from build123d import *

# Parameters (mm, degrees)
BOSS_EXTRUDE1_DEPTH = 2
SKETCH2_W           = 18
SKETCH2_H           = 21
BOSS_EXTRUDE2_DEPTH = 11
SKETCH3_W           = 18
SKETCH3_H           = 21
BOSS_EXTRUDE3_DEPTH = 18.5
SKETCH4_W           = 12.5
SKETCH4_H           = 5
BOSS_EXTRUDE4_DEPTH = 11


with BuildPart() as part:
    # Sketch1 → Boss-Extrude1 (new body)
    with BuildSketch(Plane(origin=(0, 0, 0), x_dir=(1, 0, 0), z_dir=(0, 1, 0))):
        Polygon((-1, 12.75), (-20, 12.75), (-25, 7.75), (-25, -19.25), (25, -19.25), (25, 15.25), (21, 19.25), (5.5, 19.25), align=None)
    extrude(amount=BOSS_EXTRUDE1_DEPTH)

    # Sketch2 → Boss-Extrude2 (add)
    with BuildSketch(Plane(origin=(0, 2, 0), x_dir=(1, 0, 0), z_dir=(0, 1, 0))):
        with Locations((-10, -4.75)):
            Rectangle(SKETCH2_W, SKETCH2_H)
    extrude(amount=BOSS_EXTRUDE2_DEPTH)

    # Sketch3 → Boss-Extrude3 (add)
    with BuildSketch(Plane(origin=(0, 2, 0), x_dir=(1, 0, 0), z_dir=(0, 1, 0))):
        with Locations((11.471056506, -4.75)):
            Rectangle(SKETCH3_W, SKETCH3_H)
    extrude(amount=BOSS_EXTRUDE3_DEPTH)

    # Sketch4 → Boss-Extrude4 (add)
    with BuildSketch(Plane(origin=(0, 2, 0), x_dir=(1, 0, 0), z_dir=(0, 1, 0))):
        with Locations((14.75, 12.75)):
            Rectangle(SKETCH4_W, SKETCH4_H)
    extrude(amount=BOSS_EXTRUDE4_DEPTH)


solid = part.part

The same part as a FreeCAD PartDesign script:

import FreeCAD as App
import Part
import Sketcher
from FreeCAD import Vector
Q = App.Units.Quantity


def add_polygon(sketch, points):
    """Adds a closed chain of lines whose ends are joined by coincident constraints."""
    first, n = sketch.GeometryCount, len(points)
    for a, b in zip(points, points[1:] + points[:1]):
        sketch.addGeometry(Part.LineSegment(App.Vector(*a, 0), App.Vector(*b, 0)), False)
    for i in range(n):
        sketch.addConstraint(Sketcher.Constraint("Coincident", first + i, 2, first + (i + 1) % n, 1))

doc = App.newDocument("Part")
body = doc.addObject("PartDesign::Body", "Body")

# Sketch on XZ plane
sketch1 = doc.addObject("Sketcher::SketchObject", "Sketch")
body.addObject(sketch1)
sketch1.AttachmentSupport = (doc.XZ_Plane, [""])
sketch1.MapMode = "FlatFace"
add_polygon(sketch1, [(-1, -12.75), (-20, -12.75), (-25, -7.75), (-25, 19.25), (25, 19.25), (25, -15.25), (21, -19.25), (5.5, -19.25)])  # lines 0-7
sketch1.addConstraint(Sketcher.Constraint("Horizontal", 0))
sketch1.addConstraint(Sketcher.Constraint("Vertical", 2))
sketch1.addConstraint(Sketcher.Constraint("Horizontal", 3))
sketch1.addConstraint(Sketcher.Constraint("Vertical", 4))
sketch1.addConstraint(Sketcher.Constraint("Horizontal", 6))
sketch1.addConstraint(Sketcher.Constraint("Perpendicular", 1, 5))
sketch1.addConstraint(Sketcher.Constraint("Perpendicular", 5, 7))
sketch1.addConstraint(Sketcher.Constraint("DistanceX", 0, 2, 0, 1, Q("19 mm")))
sketch1.addConstraint(Sketcher.Constraint("DistanceX", 3, 1, 3, 2, Q("50 mm")))
sketch1.addConstraint(Sketcher.Constraint("DistanceY", 2, 1, 2, 2, Q("27 mm")))
sketch1.addConstraint(Sketcher.Constraint("Angle", 1, Q("135 deg")))
sketch1.addConstraint(Sketcher.Constraint("DistanceX", 6, 2, 6, 1, Q("15.5 mm")))
sketch1.addConstraint(Sketcher.Constraint("DistanceY", 4, 2, 4, 1, Q("34.5 mm")))
sketch1.addConstraint(Sketcher.Constraint("DistanceX", 0, 2, -1, 1, Q("20 mm")))
sketch1.addConstraint(Sketcher.Constraint("DistanceX", 1, 2, -1, 1, Q("25 mm")))
sketch1.addConstraint(Sketcher.Constraint("DistanceY", 0, 2, -1, 1, Q("12.75 mm")))
pad1 = doc.addObject("PartDesign::Pad", "Pad")
body.addObject(pad1)
pad1.Profile = sketch1
pad1.Length = 2
pad1.Reversed = True

# Sketch on XZ plane
sketch2 = doc.addObject("Sketcher::SketchObject", "Sketch001")
body.addObject(sketch2)
sketch2.AttachmentSupport = (doc.XZ_Plane, [""])
sketch2.MapMode = "FlatFace"
sketch2.AttachmentOffset = App.Placement(Vector(0, 0, -2), App.Rotation())
add_polygon(sketch2, [(-19, -5.75), (-19, 15.25), (-1, 15.25), (-1, -5.75)])  # lines 0-3
sketch2.addConstraint(Sketcher.Constraint("Vertical", 0))
sketch2.addConstraint(Sketcher.Constraint("Horizontal", 1))
sketch2.addConstraint(Sketcher.Constraint("Vertical", 2))
sketch2.addConstraint(Sketcher.Constraint("Horizontal", 3))
sketch2.addConstraint(Sketcher.Constraint("DistanceX", 1, 1, 1, 2, Q("18 mm")))
sketch2.addConstraint(Sketcher.Constraint("DistanceY", 0, 1, 0, 2, Q("21 mm")))
sketch2.addConstraint(Sketcher.Constraint("DistanceX", 0, 2, -1, 1, Q("19 mm")))
sketch2.addConstraint(Sketcher.Constraint("DistanceY", -1, 1, 0, 2, Q("15.25 mm")))
pad2 = doc.addObject("PartDesign::Pad", "Pad001")
body.addObject(pad2)
pad2.Profile = sketch2
pad2.Length = 11
pad2.Reversed = True

# Sketch on XZ plane
sketch3 = doc.addObject("Sketcher::SketchObject", "Sketch002")
body.addObject(sketch3)
sketch3.AttachmentSupport = (doc.XZ_Plane, [""])
sketch3.MapMode = "FlatFace"
sketch3.AttachmentOffset = App.Placement(Vector(0, 0, -2), App.Rotation())
add_polygon(sketch3, [(2.471057, -5.75), (2.471057, 15.25), (20.471057, 15.25), (20.471057, -5.75)])  # lines 0-3
sketch3.addConstraint(Sketcher.Constraint("Vertical", 0))
sketch3.addConstraint(Sketcher.Constraint("Horizontal", 1))
sketch3.addConstraint(Sketcher.Constraint("Vertical", 2))
sketch3.addConstraint(Sketcher.Constraint("Horizontal", 3))
sketch3.addConstraint(Sketcher.Constraint("DistanceX", 1, 1, 1, 2, Q("18 mm")))
sketch3.addConstraint(Sketcher.Constraint("DistanceY", 0, 1, 0, 2, Q("21 mm")))
sketch3.addConstraint(Sketcher.Constraint("DistanceY", -1, 1, 0, 2, Q("15.25 mm")))
sketch3.addConstraint(Sketcher.Constraint("DistanceX", -1, 1, 0, 2, Q("2.471057 mm")))
pad3 = doc.addObject("PartDesign::Pad", "Pad002")
body.addObject(pad3)
pad3.Profile = sketch3
pad3.Length = 18.5
pad3.Reversed = True

# Sketch on XZ plane
sketch4 = doc.addObject("Sketcher::SketchObject", "Sketch003")
body.addObject(sketch4)
sketch4.AttachmentSupport = (doc.XZ_Plane, [""])
sketch4.MapMode = "FlatFace"
sketch4.AttachmentOffset = App.Placement(Vector(0, 0, -2), App.Rotation())
add_polygon(sketch4, [(8.5, -15.25), (8.5, -10.25), (21, -10.25), (21, -15.25)])  # lines 0-3
sketch4.addConstraint(Sketcher.Constraint("Vertical", 0))
sketch4.addConstraint(Sketcher.Constraint("Horizontal", 1))
sketch4.addConstraint(Sketcher.Constraint("Vertical", 2))
sketch4.addConstraint(Sketcher.Constraint("Horizontal", 3))
sketch4.addConstraint(Sketcher.Constraint("DistanceY", 0, 1, 0, 2, Q("5 mm")))
sketch4.addConstraint(Sketcher.Constraint("DistanceX", 1, 1, 1, 2, Q("12.5 mm")))
sketch4.addConstraint(Sketcher.Constraint("DistanceX", -1, 1, 1, 2, Q("21 mm")))
sketch4.addConstraint(Sketcher.Constraint("DistanceY", 0, 2, -1, 1, Q("10.25 mm")))
pad4 = doc.addObject("PartDesign::Pad", "Pad003")
body.addObject(pad4)
pad4.Profile = sketch4
pad4.Length = 11
pad4.Reversed = True

doc.recompute()
